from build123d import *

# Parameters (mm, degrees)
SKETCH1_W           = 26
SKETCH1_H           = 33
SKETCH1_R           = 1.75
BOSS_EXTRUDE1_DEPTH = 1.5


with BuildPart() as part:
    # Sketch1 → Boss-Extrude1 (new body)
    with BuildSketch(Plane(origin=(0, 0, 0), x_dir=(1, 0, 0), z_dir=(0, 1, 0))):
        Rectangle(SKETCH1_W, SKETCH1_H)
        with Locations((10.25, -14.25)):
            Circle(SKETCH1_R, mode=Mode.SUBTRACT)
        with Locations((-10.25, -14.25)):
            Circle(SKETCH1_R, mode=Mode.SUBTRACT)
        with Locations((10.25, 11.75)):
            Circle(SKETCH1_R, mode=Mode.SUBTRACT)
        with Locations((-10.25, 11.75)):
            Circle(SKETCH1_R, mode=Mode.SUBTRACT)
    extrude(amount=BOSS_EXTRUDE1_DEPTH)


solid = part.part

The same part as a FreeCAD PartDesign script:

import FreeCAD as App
import Part
import Sketcher

V = App.Vector

doc = App.newDocument("Part")
body = doc.addObject("PartDesign::Body", "Body")

sketch1 = doc.addObject("Sketcher::SketchObject", "Sketch")
body.addObject(sketch1)
sketch1.AttachmentSupport = (doc.XZ_Plane, [""])
sketch1.MapMode = "FlatFace"
sketch1.addGeometry([
    Part.LineSegment(V(-13, -16.5, 0), V(-13, 16.5, 0)),
    Part.LineSegment(V(-13, 16.5, 0), V(13, 16.5, 0)),
    Part.LineSegment(V(13, 16.5, 0), V(13, -16.5, 0)),
    Part.LineSegment(V(13, -16.5, 0), V(-13, -16.5, 0)),
    Part.Circle(V(-10.25, 14.25, 0), V(0, 0, 1), 1.75),
    Part.Circle(V(10.25, 14.25, 0), V(0, 0, 1), 1.75),
    Part.Circle(V(-10.25, -11.75, 0), V(0, 0, 1), 1.75),
    Part.Circle(V(10.25, -11.75, 0), V(0, 0, 1), 1.75),
], False)
sketch1.addConstraint([
    Sketcher.Constraint("Coincident", 0, 2, 1, 1),
    Sketcher.Constraint("Coincident", 1, 2, 2, 1),
    Sketcher.Constraint("Coincident", 2, 2, 3, 1),
    Sketcher.Constraint("Coincident", 3, 2, 0, 1),
    Sketcher.Constraint("Vertical", 0),
    Sketcher.Constraint("Horizontal", 1),
    Sketcher.Constraint("Vertical", 2),
    Sketcher.Constraint("Horizontal", 3),
    Sketcher.Constraint("Equal", 4, 5),
    Sketcher.Constraint("Equal", 5, 6),
    Sketcher.Constraint("Equal", 6, 7),
    Sketcher.Constraint("Symmetric", 0, 2, 2, 2, -1, 1),
    Sketcher.Constraint("Symmetric", 4, 3, 5, 3, -2),
    Sketcher.Constraint("Symmetric", 6, 3, 7, 3, -2),
    Sketcher.Constraint("Vertical", 4, 3, 6, 3),
    Sketcher.Constraint("Diameter", 4, 3.5),
    Sketcher.Constraint("DistanceX", 1, 1, 1, 2, 26.0),
    Sketcher.Constraint("DistanceY", 0, 1, 0, 2, 33.0),
    Sketcher.Constraint("DistanceY", 6, 3, 4, 3, 26.0),
    Sketcher.Constraint("DistanceX", 4, 3, 5, 3, 20.5),
    Sketcher.Constraint("DistanceY", -1, 1, 4, 3, 14.25),
])
pad1 = doc.addObject("PartDesign::Pad", "Pad")
body.addObject(pad1)
pad1.Profile = sketch1
pad1.Length = 1.5
pad1.Reversed = True

doc.recompute()
